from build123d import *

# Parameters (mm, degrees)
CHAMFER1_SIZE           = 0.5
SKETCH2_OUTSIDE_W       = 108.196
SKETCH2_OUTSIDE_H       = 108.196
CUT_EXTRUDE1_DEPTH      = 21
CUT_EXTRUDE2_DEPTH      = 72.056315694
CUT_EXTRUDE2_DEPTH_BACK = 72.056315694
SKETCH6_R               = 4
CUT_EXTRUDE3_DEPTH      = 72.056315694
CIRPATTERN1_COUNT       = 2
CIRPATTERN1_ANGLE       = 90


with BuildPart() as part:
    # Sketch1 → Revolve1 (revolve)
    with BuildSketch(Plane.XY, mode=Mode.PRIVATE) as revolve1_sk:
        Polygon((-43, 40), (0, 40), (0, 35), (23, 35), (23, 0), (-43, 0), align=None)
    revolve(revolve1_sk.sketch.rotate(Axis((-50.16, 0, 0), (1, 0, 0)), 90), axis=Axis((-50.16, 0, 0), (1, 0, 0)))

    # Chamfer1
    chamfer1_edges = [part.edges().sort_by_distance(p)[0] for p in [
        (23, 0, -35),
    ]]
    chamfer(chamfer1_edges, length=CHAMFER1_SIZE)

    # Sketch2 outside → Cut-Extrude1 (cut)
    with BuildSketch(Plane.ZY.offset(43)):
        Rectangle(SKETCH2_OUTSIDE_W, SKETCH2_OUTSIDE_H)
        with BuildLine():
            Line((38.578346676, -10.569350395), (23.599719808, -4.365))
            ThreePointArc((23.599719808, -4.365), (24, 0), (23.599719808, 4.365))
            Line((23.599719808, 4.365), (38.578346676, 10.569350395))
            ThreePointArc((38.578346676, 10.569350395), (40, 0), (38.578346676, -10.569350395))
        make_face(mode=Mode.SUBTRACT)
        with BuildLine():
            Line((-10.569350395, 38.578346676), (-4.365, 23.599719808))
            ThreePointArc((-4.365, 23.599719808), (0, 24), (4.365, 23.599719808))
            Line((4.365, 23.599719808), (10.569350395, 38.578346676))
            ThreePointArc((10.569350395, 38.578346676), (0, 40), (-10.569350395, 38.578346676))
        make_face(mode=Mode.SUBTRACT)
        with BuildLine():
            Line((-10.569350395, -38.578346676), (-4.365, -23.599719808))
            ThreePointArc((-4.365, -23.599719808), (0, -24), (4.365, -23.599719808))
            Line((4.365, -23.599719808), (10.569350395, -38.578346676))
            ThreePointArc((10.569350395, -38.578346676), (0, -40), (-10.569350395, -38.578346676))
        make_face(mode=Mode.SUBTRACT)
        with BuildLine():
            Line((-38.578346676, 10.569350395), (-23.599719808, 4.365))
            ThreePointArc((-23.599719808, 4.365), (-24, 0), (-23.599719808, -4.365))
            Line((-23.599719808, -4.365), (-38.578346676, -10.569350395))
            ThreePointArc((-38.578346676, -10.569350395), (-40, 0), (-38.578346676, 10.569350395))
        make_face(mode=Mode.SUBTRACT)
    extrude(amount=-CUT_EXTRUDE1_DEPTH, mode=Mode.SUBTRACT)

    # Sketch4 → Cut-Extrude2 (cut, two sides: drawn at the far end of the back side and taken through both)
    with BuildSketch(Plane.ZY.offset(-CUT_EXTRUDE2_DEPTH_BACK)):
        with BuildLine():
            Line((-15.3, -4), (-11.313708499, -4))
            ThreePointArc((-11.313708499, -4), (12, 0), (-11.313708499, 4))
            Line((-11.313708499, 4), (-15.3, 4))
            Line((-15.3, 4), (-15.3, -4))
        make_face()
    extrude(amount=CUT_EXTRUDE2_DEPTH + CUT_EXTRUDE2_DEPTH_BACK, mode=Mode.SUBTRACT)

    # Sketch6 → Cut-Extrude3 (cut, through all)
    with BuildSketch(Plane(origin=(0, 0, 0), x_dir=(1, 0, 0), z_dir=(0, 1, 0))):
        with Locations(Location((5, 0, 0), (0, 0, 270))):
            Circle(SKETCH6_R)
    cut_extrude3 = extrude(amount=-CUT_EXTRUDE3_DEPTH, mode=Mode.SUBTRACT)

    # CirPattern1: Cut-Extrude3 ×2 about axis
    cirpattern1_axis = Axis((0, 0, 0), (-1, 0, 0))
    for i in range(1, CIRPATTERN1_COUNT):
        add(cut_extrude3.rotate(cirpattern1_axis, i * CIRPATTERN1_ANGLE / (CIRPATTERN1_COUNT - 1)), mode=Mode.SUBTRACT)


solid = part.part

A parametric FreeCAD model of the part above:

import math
import FreeCAD as App
import Part
import Sketcher
from FreeCAD import Vector
Q = App.Units.Quantity


def edges_at(feature, points):
    """Names of the edges that pass closest to the given points."""
    edges = feature.Shape.Edges
    near = lambda p: min(range(len(edges)), key=lambda i: edges[i].distToShape(Part.Vertex(*p))[0])
    return sorted({f"Edge{near(p) + 1}" for p in points})

doc = App.newDocument("Part")
body = doc.addObject("PartDesign::Body", "Body")

# Sketch on XY plane
sketch1 = body.newObject("Sketcher::SketchObject", "Sketch")
sketch1.AttachmentSupport = (doc.getObject("XY_Plane"), [""])
sketch1.MapMode = "FlatFace"
sketch1.addGeometry(Part.LineSegment(Vector(0, 40, 0), Vector(-43, 40, 0)), False)
sketch1.addGeometry(Part.LineSegment(Vector(-43, 40, 0), Vector(-43, 0, 0)), False)
sketch1.addGeometry(Part.LineSegment(Vector(-43, 0, 0), Vector(23, 0, 0)), False)
sketch1.addGeometry(Part.LineSegment(Vector(23, 0, 0), Vector(23, 35, 0)), False)
sketch1.addGeometry(Part.LineSegment(Vector(23, 35, 0), Vector(0, 35, 0)), False)
sketch1.addGeometry(Part.LineSegment(Vector(0, 35, 0), Vector(0, 40, 0)), False)
sketch1.addConstraint(Sketcher.Constraint("Coincident", 0, 2, 1, 1))
sketch1.addConstraint(Sketcher.Constraint("Coincident", 1, 2, 2, 1))
sketch1.addConstraint(Sketcher.Constraint("Coincident", 2, 2, 3, 1))
sketch1.addConstraint(Sketcher.Constraint("Coincident", 3, 2, 4, 1))
sketch1.addConstraint(Sketcher.Constraint("Coincident", 4, 2, 5, 1))
sketch1.addConstraint(Sketcher.Constraint("Coincident", 5, 2, 0, 1))
sketch1.addConstraint(Sketcher.Constraint("Horizontal", 0))
sketch1.addConstraint(Sketcher.Constraint("Vertical", 1))
sketch1.addConstraint(Sketcher.Constraint("Horizontal", 2))
sketch1.addConstraint(Sketcher.Constraint("Vertical", 3))
sketch1.addConstraint(Sketcher.Constraint("Horizontal", 4))
sketch1.addConstraint(Sketcher.Constraint("Vertical", 5))
sketch1.addConstraint(Sketcher.Constraint("PointOnObject", 1, 2, -1))
sketch1.addConstraint(Sketcher.Constraint("PointOnObject", 4, 2, -2))
sketch1.addConstraint(Sketcher.Constraint("DistanceX", 0, 2, 0, 1, 43.0))
sketch1.addConstraint(Sketcher.Constraint("DistanceX", 2, 1, 2, 2, 66.0))
sketch1.addConstraint(Sketcher.Constraint("DistanceY", 1, 2, 1, 1, 40.0))
sketch1.addConstraint(Sketcher.Constraint("DistanceY", 3, 1, 3, 2, 35.0))
revolution = body.newObject("PartDesign::Revolution", "Revolution")
revolution.Profile = sketch1
revolution.ReferenceAxis = (sketch1, ["H_Axis"])
revolution.Angle = 360
doc.recompute()

chamfer = body.newObject("PartDesign::Chamfer", "Chamfer")
chamfer.Base = (revolution, edges_at(revolution, [(23, 0, -35)]))
chamfer.Size = 0.5

# Sketch on YZ plane
sketch2 = body.newObject("Sketcher::SketchObject", "Sketch001")
sketch2.AttachmentSupport = (doc.getObject("YZ_Plane"), [""])
sketch2.MapMode = "FlatFace"
sketch2.AttachmentOffset = App.Placement(Vector(0, 0, -43), App.Rotation())
sketch2.addGeometry(Part.LineSegment(Vector(54, -54, 0), Vector(-54, -54, 0)), False)
sketch2.addGeometry(Part.LineSegment(Vector(-54, -54, 0), Vector(-54, 54, 0)), False)
sketch2.addGeometry(Part.LineSegment(Vector(-54, 54, 0), Vector(54, 54, 0)), False)
sketch2.addGeometry(Part.LineSegment(Vector(54, 54, 0), Vector(54, -54, 0)), False)
sketch2.addGeometry(Part.ArcOfCircle(Part.Circle(Vector(0, 0, 0), Vector(0, 0, 1), 40), math.radians(165), math.radians(195)), False)
sketch2.addGeometry(Part.LineSegment(Vector(-39, -11, 0), Vector(-24, -4, 0)), False)
sketch2.addGeometry(Part.ArcOfCircle(Part.Circle(Vector(0, 0, 0), Vector(0, 0, 1), 24), math.radians(170), math.radians(190)), False)
sketch2.addGeometry(Part.LineSegment(Vector(-24, 4, 0), Vector(-39, 11, 0)), False)
sketch2.addGeometry(Part.ArcOfCircle(Part.Circle(Vector(0, 0, 0), Vector(0, 0, 1), 40), math.radians(-105), math.radians(-75)), False)
sketch2.addGeometry(Part.LineSegment(Vector(11, -39, 0), Vector(4, -24, 0)), False)
sketch2.addGeometry(Part.ArcOfCircle(Part.Circle(Vector(0, 0, 0), Vector(0, 0, 1), 24), math.radians(-100), math.radians(-80)), False)
sketch2.addGeometry(Part.LineSegment(Vector(-4, -24, 0), Vector(-11, -39, 0)), False)
sketch2.addGeometry(Part.ArcOfCircle(Part.Circle(Vector(0, 0, 0), Vector(0, 0, 1), 40), math.radians(75), math.radians(105)), False)
sketch2.addGeometry(Part.LineSegment(Vector(-11, 39, 0), Vector(-4, 24, 0)), False)
sketch2.addGeometry(Part.ArcOfCircle(Part.Circle(Vector(0, 0, 0), Vector(0, 0, 1), 24), math.radians(80), math.radians(100)), False)
sketch2.addGeometry(Part.LineSegment(Vector(4, 24, 0), Vector(11, 39, 0)), False)
sketch2.addGeometry(Part.LineSegment(Vector(24, -4, 0), Vector(39, -11, 0)), False)
sketch2.addGeometry(Part.ArcOfCircle(Part.Circle(Vector(0, 0, 0), Vector(0, 0, 1), 40), math.radians(-15), math.radians(15)), False)
sketch2.addGeometry(Part.LineSegment(Vector(39, 11, 0), Vector(24, 4, 0)), False)
sketch2.addGeometry(Part.ArcOfCircle(Part.Circle(Vector(0, 0, 0), Vector(0, 0, 1), 24), math.radians(-10), math.radians(10)), False)
sketch2.addConstraint(Sketcher.Constraint("Coincident", 0, 2, 1, 1))
sketch2.addConstraint(Sketcher.Constraint("Coincident", 1, 2, 2, 1))
sketch2.addConstraint(Sketcher.Constraint("Coincident", 2, 2, 3, 1))
sketch2.addConstraint(Sketcher.Constraint("Coincident", 3, 2, 0, 1))
sketch2.addConstraint(Sketcher.Constraint("Coincident", 4, 2, 5, 1))
sketch2.addConstraint(Sketcher.Constraint("Coincident", 5, 2, 6, 2))
sketch2.addConstraint(Sketcher.Constraint("Coincident", 6, 1, 7, 1))
sketch2.addConstraint(Sketcher.Constraint("Coincident", 7, 2, 4, 1))
sketch2.addConstraint(Sketcher.Constraint("Coincident", 8, 2, 9, 1))
sketch2.addConstraint(Sketcher.Constraint("Coincident", 9, 2, 10, 2))
sketch2.addConstraint(Sketcher.Constraint("Coincident", 10, 1, 11, 1))
sketch2.addConstraint(Sketcher.Constraint("Coincident", 11, 2, 8, 1))
sketch2.addConstraint(Sketcher.Constraint("Coincident", 12, 2, 13, 1))
sketch2.addConstraint(Sketcher.Constraint("Coincident", 13, 2, 14, 2))
sketch2.addConstraint(Sketcher.Constraint("Coincident", 14, 1, 15, 1))
sketch2.addConstraint(Sketcher.Constraint("Coincident", 15, 2, 12, 1))
sketch2.addConstraint(Sketcher.Constraint("Coincident", 16, 2, 17, 1))
sketch2.addConstraint(Sketcher.Constraint("Coincident", 17, 2, 18, 1))
sketch2.addConstraint(Sketcher.Constraint("Coincident", 18, 2, 19, 2))
sketch2.addConstraint(Sketcher.Constraint("Coincident", 19, 1, 16, 1))
sketch2.addConstraint(Sketcher.Constraint("Horizontal", 0))
sketch2.addConstraint(Sketcher.Constraint("Vertical", 1))
sketch2.addConstraint(Sketcher.Constraint("Horizontal", 2))
sketch2.addConstraint(Sketcher.Constraint("Vertical", 3))
sketch2.addConstraint(Sketcher.Constraint("Coincident", 4, 3, -1, 1))
sketch2.addConstraint(Sketcher.Constraint("Coincident", 6, 3, -1, 1))
sketch2.addConstraint(Sketcher.Constraint("Coincident", 8, 3, -1, 1))
sketch2.addConstraint(Sketcher.Constraint("Coincident", 10, 3, -1, 1))
sketch2.addConstraint(Sketcher.Constraint("Coincident", 12, 3, -1, 1))
sketch2.addConstraint(Sketcher.Constraint("Coincident", 14, 3, -1, 1))
sketch2.addConstraint(Sketcher.Constraint("Coincident", 17, 3, -1, 1))
sketch2.addConstraint(Sketcher.Constraint("Coincident", 19, 3, -1, 1))
sketch2.addConstraint(Sketcher.Constraint("Equal", 4, 8))
sketch2.addConstraint(Sketcher.Constraint("Equal", 6, 10))
sketch2.addConstraint(Sketcher.Constraint("Equal", 8, 12))
sketch2.addConstraint(Sketcher.Constraint("Equal", 10, 14))
sketch2.addConstraint(Sketcher.Constraint("Equal", 12, 17))
sketch2.addConstraint(Sketcher.Constraint("Equal", 14, 19))
sketch2.addConstraint(Sketcher.Constraint("Symmetric", 0, 2, 2, 2, -1, 1))
sketch2.addConstraint(Sketcher.Constraint("Perpendicular", 5, 9))
sketch2.addConstraint(Sketcher.Constraint("Perpendicular", 7, 11))
sketch2.addConstraint(Sketcher.Constraint("Parallel", 9, 13))
sketch2.addConstraint(Sketcher.Constraint("Parallel", 11, 15))
sketch2.addConstraint(Sketcher.Constraint("Perpendicular", 15, 16))
sketch2.addConstraint(Sketcher.Constraint("Perpendicular", 13, 18))
sketch2.addConstraint(Sketcher.Constraint("Horizontal", 9, 2, 10, 1))
sketch2.addConstraint(Sketcher.Constraint("Horizontal", 8, 2, 11, 2))
sketch2.addConstraint(Sketcher.Constraint("Horizontal", 13, 2, 14, 1))
sketch2.addConstraint(Sketcher.Constraint("Horizontal", 4, 2, 16, 2))
sketch2.addConstraint(Sketcher.Constraint("Horizontal", 7, 2, 17, 2))
sketch2.addConstraint(Sketcher.Constraint("Vertical", 5, 2, 6, 1))
sketch2.addConstraint(Sketcher.Constraint("Vertical", 11, 2, 12, 2))
sketch2.addConstraint(Sketcher.Constraint("Equal", 2, 1))
sketch2.addConstraint(Sketcher.Constraint("Equal", 7, 9))
sketch2.addConstraint(Sketcher.Constraint("Radius", 4, 40.0))
sketch2.addConstraint(Sketcher.Constraint("Radius", 6, 24.0))
sketch2.addConstraint(Sketcher.Constraint("Angle", 5, Q("22.5 deg")))
sketch2.addConstraint(Sketcher.Constraint("DistanceX", 0, 2, 0, 1, 108.196))
sketch2.addConstraint(Sketcher.Constraint("DistanceY", 5, 2, 6, 1, 8.73))
pocket1 = body.newObject("PartDesign::Pocket", "Pocket")
pocket1.Profile = sketch2
pocket1.Length = 21
pocket1.Reversed = True

# Sketch on YZ plane
sketch3 = body.newObject("Sketcher::SketchObject", "Sketch002")
sketch3.AttachmentSupport = (doc.getObject("YZ_Plane"), [""])
sketch3.MapMode = "FlatFace"
sketch3.addGeometry(Part.LineSegment(Vector(-4, -15.3, 0), Vector(-4, -11.3, 0)), False)
sketch3.addGeometry(Part.ArcOfCircle(Part.Circle(Vector(0, 0, 0), Vector(0, 0, 1), 12), math.radians(-71), math.radians(251)), False)
sketch3.addGeometry(Part.LineSegment(Vector(4, -11.3, 0), Vector(4, -15.3, 0)), False)
sketch3.addGeometry(Part.LineSegment(Vector(4, -15.3, 0), Vector(-4, -15.3, 0)), False)
sketch3.addConstraint(Sketcher.Constraint("Coincident", 0, 2, 1, 2))
sketch3.addConstraint(Sketcher.Constraint("Coincident", 1, 1, 2, 1))
sketch3.addConstraint(Sketcher.Constraint("Coincident", 2, 2, 3, 1))
sketch3.addConstraint(Sketcher.Constraint("Coincident", 3, 2, 0, 1))
sketch3.addConstraint(Sketcher.Constraint("Vertical", 0))
sketch3.addConstraint(Sketcher.Constraint("Vertical", 2))
sketch3.addConstraint(Sketcher.Constraint("Horizontal", 3))
sketch3.addConstraint(Sketcher.Constraint("Coincident", 1, 3, -1, 1))
sketch3.addConstraint(Sketcher.Constraint("Horizontal", 0, 2, 1, 1))
sketch3.addConstraint(Sketcher.Constraint("Radius", 1, 12.0))
sketch3.addConstraint(Sketcher.Constraint("DistanceX", 3, 2, 3, 1, 8.0))
sketch3.addConstraint(Sketcher.Constraint("DistanceY", 2, 2, -1, 1, 15.3))
pocket2 = body.newObject("PartDesign::Pocket", "Pocket001")
pocket2.Profile = sketch3
pocket2.Type = "ThroughAll"
pocket2.Midplane = True

# Sketch on XZ plane
sketch4 = body.newObject("Sketcher::SketchObject", "Sketch003")
sketch4.AttachmentSupport = (doc.getObject("XZ_Plane"), [""])
sketch4.MapMode = "FlatFace"
sketch4.addGeometry(Part.Circle(Vector(5, 0, 0), Vector(0, 0, 1), 4), False)
sketch4.addConstraint(Sketcher.Constraint("PointOnObject", 0, 3, -1))
sketch4.addConstraint(Sketcher.Constraint("Diameter", 0, 8.0))
sketch4.addConstraint(Sketcher.Constraint("DistanceX", -1, 1, 0, 3, 5.0))
pocket3 = body.newObject("PartDesign::Pocket", "Pocket002")
pocket3.Profile = sketch4
pocket3.Type = "ThroughAll"
pocket3.Reversed = True
doc.recompute()

polarpattern = body.newObject("PartDesign::PolarPattern", "PolarPattern")
polarpattern.Originals = [pocket3]
polarpattern.Axis = (doc.getObject("X_Axis"), [""])
polarpattern.Angle = 90
polarpattern.Occurrences = 2
polarpattern.Reversed = True
body.Tip = polarpattern

doc.recompute()
